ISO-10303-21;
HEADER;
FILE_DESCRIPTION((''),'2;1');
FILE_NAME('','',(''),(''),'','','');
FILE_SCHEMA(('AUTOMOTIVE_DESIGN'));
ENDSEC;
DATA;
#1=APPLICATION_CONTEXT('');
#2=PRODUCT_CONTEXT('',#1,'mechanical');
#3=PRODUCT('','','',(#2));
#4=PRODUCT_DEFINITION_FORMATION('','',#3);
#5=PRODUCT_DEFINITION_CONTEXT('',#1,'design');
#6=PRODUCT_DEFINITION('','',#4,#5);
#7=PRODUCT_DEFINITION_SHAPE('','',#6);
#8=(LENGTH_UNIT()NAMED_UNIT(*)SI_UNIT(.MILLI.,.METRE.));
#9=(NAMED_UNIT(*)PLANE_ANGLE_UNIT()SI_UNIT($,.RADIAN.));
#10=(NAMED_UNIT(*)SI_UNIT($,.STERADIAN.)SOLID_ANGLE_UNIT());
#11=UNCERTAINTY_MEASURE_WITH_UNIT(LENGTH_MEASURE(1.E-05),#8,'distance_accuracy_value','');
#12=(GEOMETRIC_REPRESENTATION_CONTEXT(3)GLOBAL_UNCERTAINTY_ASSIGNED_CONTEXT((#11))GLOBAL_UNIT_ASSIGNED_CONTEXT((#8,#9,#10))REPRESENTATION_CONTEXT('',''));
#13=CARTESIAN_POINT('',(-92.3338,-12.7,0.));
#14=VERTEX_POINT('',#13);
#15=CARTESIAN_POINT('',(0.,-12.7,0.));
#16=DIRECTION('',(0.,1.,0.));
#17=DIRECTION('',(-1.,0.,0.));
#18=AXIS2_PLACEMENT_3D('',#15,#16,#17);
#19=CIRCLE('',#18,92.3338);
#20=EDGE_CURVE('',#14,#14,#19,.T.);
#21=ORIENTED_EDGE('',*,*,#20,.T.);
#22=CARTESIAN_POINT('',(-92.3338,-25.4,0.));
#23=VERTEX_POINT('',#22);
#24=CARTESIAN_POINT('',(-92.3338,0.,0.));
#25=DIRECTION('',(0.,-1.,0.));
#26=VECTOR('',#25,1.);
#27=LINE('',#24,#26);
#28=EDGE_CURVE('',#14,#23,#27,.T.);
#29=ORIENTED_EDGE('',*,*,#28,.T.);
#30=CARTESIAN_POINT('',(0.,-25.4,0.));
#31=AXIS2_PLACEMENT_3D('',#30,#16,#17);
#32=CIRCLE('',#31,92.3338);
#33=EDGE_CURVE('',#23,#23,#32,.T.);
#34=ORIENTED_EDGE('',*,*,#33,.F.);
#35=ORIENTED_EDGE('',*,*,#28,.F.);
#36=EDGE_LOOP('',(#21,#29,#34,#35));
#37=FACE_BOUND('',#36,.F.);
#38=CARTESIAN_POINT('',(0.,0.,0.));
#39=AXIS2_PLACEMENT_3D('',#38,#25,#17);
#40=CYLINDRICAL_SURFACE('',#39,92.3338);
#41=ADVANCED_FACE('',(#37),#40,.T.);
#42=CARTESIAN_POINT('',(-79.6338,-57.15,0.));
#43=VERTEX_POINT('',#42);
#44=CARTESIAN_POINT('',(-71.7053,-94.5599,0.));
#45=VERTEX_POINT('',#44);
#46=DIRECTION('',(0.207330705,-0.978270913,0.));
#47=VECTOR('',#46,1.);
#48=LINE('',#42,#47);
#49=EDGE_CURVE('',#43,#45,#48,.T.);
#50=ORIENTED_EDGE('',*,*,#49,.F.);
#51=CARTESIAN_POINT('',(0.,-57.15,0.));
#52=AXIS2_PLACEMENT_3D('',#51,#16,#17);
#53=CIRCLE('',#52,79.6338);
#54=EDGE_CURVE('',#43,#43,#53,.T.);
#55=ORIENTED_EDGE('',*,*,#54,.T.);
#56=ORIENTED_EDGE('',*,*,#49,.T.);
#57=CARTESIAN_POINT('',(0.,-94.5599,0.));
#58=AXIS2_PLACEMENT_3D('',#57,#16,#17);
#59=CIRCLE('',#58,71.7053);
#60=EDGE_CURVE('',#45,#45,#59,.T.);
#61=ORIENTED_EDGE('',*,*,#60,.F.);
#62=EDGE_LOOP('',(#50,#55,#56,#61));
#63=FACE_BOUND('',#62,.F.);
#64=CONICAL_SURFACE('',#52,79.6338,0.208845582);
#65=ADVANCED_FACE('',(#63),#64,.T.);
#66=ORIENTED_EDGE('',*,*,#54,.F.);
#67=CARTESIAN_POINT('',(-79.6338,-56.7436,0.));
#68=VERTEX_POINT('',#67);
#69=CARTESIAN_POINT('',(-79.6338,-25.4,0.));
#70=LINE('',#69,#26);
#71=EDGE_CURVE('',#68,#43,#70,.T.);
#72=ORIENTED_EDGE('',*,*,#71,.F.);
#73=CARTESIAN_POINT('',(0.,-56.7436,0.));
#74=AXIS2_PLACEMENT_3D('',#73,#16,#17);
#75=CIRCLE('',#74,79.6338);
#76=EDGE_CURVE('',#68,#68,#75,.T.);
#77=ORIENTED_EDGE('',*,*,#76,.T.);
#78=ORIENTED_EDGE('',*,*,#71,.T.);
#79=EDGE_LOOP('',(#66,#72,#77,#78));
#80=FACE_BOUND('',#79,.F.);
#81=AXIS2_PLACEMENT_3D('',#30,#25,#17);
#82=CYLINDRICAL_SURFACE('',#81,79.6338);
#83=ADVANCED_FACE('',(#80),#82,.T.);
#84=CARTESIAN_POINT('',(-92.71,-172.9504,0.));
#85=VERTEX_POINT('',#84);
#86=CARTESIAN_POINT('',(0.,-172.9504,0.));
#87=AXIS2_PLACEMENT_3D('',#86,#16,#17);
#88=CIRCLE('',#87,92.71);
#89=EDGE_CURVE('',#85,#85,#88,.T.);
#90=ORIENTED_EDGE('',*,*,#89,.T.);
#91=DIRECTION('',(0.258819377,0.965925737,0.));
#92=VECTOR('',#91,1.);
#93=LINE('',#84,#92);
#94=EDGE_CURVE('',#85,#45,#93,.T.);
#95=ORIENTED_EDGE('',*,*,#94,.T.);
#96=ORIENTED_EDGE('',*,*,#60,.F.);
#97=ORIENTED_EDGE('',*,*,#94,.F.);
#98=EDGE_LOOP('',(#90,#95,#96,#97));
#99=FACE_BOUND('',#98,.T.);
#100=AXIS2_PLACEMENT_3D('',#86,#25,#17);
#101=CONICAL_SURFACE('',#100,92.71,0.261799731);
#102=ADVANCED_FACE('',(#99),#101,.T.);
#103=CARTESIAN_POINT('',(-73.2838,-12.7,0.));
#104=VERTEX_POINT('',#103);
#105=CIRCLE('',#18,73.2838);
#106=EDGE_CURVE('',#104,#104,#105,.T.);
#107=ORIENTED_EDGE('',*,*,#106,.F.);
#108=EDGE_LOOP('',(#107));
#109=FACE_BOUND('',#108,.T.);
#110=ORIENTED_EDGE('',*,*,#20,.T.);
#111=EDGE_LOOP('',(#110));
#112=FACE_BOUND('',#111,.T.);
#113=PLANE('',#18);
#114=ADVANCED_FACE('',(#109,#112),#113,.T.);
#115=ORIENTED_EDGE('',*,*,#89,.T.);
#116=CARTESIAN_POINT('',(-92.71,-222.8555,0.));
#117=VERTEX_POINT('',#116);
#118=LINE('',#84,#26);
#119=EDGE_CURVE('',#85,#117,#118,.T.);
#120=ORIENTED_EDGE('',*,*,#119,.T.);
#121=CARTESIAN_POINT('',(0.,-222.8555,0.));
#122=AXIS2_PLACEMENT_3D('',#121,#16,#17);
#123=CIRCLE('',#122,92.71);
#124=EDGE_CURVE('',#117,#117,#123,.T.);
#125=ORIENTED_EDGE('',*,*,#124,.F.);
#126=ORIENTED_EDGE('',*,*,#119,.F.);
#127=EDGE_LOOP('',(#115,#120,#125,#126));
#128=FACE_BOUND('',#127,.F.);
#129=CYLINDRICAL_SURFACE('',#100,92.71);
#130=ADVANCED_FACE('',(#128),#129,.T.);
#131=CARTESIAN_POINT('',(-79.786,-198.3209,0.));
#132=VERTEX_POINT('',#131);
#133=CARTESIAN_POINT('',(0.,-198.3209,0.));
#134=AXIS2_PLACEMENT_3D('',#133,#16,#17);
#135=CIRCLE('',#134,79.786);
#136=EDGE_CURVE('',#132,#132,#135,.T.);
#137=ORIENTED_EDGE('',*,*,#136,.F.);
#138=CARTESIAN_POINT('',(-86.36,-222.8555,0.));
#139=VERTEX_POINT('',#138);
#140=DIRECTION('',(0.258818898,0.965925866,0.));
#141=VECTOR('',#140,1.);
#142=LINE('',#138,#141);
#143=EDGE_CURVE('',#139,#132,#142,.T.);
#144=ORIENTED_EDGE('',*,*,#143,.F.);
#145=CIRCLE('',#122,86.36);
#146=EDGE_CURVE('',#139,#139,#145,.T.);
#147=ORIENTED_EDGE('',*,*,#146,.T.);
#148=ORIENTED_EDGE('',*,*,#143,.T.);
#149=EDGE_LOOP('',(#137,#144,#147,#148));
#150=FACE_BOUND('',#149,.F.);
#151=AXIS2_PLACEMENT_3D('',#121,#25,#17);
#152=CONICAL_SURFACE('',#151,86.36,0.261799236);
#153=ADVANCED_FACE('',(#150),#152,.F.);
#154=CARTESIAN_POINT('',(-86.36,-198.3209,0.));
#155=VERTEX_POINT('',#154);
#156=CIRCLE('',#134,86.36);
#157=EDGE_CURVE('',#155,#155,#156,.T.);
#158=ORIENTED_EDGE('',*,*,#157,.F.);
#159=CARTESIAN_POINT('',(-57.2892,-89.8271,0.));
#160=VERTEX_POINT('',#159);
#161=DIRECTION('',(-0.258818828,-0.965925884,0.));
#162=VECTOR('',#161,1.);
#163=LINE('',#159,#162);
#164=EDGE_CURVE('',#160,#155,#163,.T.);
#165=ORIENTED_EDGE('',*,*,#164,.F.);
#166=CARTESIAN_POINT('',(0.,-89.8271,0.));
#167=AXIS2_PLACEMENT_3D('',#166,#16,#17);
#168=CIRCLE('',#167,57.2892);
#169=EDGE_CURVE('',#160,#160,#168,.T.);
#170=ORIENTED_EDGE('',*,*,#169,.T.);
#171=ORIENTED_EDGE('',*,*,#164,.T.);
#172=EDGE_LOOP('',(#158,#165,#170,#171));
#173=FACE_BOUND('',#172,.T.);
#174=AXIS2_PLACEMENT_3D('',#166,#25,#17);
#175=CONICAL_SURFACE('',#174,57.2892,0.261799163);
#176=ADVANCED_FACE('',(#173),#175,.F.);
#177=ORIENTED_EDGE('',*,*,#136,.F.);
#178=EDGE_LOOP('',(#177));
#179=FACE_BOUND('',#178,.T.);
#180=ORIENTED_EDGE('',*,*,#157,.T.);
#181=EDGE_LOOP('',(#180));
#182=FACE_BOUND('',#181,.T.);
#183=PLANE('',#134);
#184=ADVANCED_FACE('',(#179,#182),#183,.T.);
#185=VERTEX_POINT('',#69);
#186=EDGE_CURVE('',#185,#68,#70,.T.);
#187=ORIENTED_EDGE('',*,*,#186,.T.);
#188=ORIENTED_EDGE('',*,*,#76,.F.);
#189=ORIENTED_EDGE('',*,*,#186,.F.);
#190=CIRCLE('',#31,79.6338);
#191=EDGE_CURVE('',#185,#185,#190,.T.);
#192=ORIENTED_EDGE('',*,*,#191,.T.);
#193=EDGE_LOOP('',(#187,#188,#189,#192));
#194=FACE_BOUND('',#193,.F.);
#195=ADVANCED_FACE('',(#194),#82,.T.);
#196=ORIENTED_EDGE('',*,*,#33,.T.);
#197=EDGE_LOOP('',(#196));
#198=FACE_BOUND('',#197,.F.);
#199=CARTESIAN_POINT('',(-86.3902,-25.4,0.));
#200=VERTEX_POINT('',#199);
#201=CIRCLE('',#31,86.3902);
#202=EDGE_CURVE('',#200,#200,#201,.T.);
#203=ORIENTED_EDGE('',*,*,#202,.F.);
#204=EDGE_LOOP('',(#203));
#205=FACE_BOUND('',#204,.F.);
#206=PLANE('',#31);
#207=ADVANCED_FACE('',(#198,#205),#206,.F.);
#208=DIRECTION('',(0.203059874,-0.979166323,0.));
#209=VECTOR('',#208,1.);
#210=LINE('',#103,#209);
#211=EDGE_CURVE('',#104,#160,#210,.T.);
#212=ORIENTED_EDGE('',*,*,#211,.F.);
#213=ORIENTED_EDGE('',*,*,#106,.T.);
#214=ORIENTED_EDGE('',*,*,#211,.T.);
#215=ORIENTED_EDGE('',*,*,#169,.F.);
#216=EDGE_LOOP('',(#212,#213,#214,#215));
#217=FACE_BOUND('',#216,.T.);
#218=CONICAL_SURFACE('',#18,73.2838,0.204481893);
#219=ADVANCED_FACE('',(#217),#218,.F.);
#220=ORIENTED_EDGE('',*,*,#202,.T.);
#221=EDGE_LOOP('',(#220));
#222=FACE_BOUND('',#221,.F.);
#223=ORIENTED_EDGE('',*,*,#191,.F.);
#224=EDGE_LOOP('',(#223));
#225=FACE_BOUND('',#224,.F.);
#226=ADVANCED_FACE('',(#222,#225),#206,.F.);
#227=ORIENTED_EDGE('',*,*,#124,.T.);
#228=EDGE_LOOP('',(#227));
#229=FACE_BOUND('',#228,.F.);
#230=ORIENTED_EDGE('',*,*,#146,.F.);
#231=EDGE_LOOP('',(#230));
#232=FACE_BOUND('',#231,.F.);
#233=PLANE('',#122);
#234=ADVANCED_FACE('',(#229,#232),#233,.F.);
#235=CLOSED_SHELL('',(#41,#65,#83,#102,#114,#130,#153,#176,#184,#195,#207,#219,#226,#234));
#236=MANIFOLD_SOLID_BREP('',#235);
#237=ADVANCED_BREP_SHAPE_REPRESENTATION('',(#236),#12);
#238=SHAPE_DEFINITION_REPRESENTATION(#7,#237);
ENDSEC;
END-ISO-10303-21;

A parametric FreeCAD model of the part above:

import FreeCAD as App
import Part
import Sketcher
Q = App.Units.Quantity


def add_polygon(sketch, points):
    """Adds a closed chain of lines whose ends are joined by coincident constraints."""
    first, n = sketch.GeometryCount, len(points)
    for a, b in zip(points, points[1:] + points[:1]):
        sketch.addGeometry(Part.LineSegment(App.Vector(*a, 0), App.Vector(*b, 0)), False)
    for i in range(n):
        sketch.addConstraint(Sketcher.Constraint("Coincident", first + i, 2, first + (i + 1) % n, 1))

doc = App.newDocument("Part")
body = doc.addObject("PartDesign::Body", "Body")

# Sketch on XY plane
sketch1 = body.newObject("Sketcher::SketchObject", "Sketch")
sketch1.AttachmentSupport = (doc.getObject("XY_Plane"), [""])
sketch1.MapMode = "FlatFace"
add_polygon(sketch1, [(-73.2838, -12.7), (-92.3338, -12.7), (-92.3338, -25.4), (-79.6338, -25.4), (-79.6338, -57.15), (-71.7053, -94.5599), (-92.71, -172.9504), (-92.71, -222.8555), (-86.36, -222.8555), (-79.786, -198.3209), (-86.36, -198.3209), (-57.289155, -89.827091)])  # lines 0-11
sketch1.addConstraint(Sketcher.Constraint("Horizontal", 0))
sketch1.addConstraint(Sketcher.Constraint("Vertical", 1))
sketch1.addConstraint(Sketcher.Constraint("Horizontal", 2))
sketch1.addConstraint(Sketcher.Constraint("Vertical", 3))
sketch1.addConstraint(Sketcher.Constraint("Vertical", 6))
sketch1.addConstraint(Sketcher.Constraint("Horizontal", 7))
sketch1.addConstraint(Sketcher.Constraint("Horizontal", 9))
sketch1.addConstraint(Sketcher.Constraint("Parallel", 5, 8))
sketch1.addConstraint(Sketcher.Constraint("Parallel", 8, 10))
sketch1.addConstraint(Sketcher.Constraint("Vertical", 7, 2, 9, 2))
sketch1.addConstraint(Sketcher.Constraint("Equal", 2, 1))
sketch1.addConstraint(Sketcher.Constraint("Distance", 8, Q("1 in")))
sketch1.addConstraint(Sketcher.Constraint("DistanceX", 2, 1, 2, 2, Q("0.5 in")))
sketch1.addConstraint(Sketcher.Constraint("DistanceY", 1, 2, -1, 1, Q("1 in")))
sketch1.addConstraint(Sketcher.Constraint("DistanceX", 0, 2, 0, 1, Q("0.75 in")))
sketch1.addConstraint(Sketcher.Constraint("DistanceX", 7, 1, 7, 2, Q("0.25 in")))
sketch1.addConstraint(Sketcher.Constraint("DistanceY", 3, 2, 3, 1, Q("1.25 in")))
sketch1.addConstraint(Sketcher.Constraint("DistanceX", 7, 2, -1, 1, Q("3.4 in")))
sketch1.addConstraint(Sketcher.Constraint("Angle", 5, Q("-105 deg")))
sketch1.addConstraint(Sketcher.Constraint("DistanceY", 6, 2, 4, 2, Q("5.051 in")))
sketch1.addConstraint(Sketcher.Constraint("DistanceX", 8, 2, 3, 2, Q("0.006 in")))
sketch1.addConstraint(Sketcher.Constraint("Distance", 5, Q("3.1951 in")))
sketch1.addConstraint(Sketcher.Constraint("Distance", 10, Q("4.4221 in")))
sketch1.addConstraint(Sketcher.Constraint("Distance", 11, Q("3.1011 in")))
revolution = body.newObject("PartDesign::Revolution", "Revolution")
revolution.Profile = sketch1
revolution.ReferenceAxis = (sketch1, ["V_Axis"])
revolution.Angle = 360

doc.recompute()
